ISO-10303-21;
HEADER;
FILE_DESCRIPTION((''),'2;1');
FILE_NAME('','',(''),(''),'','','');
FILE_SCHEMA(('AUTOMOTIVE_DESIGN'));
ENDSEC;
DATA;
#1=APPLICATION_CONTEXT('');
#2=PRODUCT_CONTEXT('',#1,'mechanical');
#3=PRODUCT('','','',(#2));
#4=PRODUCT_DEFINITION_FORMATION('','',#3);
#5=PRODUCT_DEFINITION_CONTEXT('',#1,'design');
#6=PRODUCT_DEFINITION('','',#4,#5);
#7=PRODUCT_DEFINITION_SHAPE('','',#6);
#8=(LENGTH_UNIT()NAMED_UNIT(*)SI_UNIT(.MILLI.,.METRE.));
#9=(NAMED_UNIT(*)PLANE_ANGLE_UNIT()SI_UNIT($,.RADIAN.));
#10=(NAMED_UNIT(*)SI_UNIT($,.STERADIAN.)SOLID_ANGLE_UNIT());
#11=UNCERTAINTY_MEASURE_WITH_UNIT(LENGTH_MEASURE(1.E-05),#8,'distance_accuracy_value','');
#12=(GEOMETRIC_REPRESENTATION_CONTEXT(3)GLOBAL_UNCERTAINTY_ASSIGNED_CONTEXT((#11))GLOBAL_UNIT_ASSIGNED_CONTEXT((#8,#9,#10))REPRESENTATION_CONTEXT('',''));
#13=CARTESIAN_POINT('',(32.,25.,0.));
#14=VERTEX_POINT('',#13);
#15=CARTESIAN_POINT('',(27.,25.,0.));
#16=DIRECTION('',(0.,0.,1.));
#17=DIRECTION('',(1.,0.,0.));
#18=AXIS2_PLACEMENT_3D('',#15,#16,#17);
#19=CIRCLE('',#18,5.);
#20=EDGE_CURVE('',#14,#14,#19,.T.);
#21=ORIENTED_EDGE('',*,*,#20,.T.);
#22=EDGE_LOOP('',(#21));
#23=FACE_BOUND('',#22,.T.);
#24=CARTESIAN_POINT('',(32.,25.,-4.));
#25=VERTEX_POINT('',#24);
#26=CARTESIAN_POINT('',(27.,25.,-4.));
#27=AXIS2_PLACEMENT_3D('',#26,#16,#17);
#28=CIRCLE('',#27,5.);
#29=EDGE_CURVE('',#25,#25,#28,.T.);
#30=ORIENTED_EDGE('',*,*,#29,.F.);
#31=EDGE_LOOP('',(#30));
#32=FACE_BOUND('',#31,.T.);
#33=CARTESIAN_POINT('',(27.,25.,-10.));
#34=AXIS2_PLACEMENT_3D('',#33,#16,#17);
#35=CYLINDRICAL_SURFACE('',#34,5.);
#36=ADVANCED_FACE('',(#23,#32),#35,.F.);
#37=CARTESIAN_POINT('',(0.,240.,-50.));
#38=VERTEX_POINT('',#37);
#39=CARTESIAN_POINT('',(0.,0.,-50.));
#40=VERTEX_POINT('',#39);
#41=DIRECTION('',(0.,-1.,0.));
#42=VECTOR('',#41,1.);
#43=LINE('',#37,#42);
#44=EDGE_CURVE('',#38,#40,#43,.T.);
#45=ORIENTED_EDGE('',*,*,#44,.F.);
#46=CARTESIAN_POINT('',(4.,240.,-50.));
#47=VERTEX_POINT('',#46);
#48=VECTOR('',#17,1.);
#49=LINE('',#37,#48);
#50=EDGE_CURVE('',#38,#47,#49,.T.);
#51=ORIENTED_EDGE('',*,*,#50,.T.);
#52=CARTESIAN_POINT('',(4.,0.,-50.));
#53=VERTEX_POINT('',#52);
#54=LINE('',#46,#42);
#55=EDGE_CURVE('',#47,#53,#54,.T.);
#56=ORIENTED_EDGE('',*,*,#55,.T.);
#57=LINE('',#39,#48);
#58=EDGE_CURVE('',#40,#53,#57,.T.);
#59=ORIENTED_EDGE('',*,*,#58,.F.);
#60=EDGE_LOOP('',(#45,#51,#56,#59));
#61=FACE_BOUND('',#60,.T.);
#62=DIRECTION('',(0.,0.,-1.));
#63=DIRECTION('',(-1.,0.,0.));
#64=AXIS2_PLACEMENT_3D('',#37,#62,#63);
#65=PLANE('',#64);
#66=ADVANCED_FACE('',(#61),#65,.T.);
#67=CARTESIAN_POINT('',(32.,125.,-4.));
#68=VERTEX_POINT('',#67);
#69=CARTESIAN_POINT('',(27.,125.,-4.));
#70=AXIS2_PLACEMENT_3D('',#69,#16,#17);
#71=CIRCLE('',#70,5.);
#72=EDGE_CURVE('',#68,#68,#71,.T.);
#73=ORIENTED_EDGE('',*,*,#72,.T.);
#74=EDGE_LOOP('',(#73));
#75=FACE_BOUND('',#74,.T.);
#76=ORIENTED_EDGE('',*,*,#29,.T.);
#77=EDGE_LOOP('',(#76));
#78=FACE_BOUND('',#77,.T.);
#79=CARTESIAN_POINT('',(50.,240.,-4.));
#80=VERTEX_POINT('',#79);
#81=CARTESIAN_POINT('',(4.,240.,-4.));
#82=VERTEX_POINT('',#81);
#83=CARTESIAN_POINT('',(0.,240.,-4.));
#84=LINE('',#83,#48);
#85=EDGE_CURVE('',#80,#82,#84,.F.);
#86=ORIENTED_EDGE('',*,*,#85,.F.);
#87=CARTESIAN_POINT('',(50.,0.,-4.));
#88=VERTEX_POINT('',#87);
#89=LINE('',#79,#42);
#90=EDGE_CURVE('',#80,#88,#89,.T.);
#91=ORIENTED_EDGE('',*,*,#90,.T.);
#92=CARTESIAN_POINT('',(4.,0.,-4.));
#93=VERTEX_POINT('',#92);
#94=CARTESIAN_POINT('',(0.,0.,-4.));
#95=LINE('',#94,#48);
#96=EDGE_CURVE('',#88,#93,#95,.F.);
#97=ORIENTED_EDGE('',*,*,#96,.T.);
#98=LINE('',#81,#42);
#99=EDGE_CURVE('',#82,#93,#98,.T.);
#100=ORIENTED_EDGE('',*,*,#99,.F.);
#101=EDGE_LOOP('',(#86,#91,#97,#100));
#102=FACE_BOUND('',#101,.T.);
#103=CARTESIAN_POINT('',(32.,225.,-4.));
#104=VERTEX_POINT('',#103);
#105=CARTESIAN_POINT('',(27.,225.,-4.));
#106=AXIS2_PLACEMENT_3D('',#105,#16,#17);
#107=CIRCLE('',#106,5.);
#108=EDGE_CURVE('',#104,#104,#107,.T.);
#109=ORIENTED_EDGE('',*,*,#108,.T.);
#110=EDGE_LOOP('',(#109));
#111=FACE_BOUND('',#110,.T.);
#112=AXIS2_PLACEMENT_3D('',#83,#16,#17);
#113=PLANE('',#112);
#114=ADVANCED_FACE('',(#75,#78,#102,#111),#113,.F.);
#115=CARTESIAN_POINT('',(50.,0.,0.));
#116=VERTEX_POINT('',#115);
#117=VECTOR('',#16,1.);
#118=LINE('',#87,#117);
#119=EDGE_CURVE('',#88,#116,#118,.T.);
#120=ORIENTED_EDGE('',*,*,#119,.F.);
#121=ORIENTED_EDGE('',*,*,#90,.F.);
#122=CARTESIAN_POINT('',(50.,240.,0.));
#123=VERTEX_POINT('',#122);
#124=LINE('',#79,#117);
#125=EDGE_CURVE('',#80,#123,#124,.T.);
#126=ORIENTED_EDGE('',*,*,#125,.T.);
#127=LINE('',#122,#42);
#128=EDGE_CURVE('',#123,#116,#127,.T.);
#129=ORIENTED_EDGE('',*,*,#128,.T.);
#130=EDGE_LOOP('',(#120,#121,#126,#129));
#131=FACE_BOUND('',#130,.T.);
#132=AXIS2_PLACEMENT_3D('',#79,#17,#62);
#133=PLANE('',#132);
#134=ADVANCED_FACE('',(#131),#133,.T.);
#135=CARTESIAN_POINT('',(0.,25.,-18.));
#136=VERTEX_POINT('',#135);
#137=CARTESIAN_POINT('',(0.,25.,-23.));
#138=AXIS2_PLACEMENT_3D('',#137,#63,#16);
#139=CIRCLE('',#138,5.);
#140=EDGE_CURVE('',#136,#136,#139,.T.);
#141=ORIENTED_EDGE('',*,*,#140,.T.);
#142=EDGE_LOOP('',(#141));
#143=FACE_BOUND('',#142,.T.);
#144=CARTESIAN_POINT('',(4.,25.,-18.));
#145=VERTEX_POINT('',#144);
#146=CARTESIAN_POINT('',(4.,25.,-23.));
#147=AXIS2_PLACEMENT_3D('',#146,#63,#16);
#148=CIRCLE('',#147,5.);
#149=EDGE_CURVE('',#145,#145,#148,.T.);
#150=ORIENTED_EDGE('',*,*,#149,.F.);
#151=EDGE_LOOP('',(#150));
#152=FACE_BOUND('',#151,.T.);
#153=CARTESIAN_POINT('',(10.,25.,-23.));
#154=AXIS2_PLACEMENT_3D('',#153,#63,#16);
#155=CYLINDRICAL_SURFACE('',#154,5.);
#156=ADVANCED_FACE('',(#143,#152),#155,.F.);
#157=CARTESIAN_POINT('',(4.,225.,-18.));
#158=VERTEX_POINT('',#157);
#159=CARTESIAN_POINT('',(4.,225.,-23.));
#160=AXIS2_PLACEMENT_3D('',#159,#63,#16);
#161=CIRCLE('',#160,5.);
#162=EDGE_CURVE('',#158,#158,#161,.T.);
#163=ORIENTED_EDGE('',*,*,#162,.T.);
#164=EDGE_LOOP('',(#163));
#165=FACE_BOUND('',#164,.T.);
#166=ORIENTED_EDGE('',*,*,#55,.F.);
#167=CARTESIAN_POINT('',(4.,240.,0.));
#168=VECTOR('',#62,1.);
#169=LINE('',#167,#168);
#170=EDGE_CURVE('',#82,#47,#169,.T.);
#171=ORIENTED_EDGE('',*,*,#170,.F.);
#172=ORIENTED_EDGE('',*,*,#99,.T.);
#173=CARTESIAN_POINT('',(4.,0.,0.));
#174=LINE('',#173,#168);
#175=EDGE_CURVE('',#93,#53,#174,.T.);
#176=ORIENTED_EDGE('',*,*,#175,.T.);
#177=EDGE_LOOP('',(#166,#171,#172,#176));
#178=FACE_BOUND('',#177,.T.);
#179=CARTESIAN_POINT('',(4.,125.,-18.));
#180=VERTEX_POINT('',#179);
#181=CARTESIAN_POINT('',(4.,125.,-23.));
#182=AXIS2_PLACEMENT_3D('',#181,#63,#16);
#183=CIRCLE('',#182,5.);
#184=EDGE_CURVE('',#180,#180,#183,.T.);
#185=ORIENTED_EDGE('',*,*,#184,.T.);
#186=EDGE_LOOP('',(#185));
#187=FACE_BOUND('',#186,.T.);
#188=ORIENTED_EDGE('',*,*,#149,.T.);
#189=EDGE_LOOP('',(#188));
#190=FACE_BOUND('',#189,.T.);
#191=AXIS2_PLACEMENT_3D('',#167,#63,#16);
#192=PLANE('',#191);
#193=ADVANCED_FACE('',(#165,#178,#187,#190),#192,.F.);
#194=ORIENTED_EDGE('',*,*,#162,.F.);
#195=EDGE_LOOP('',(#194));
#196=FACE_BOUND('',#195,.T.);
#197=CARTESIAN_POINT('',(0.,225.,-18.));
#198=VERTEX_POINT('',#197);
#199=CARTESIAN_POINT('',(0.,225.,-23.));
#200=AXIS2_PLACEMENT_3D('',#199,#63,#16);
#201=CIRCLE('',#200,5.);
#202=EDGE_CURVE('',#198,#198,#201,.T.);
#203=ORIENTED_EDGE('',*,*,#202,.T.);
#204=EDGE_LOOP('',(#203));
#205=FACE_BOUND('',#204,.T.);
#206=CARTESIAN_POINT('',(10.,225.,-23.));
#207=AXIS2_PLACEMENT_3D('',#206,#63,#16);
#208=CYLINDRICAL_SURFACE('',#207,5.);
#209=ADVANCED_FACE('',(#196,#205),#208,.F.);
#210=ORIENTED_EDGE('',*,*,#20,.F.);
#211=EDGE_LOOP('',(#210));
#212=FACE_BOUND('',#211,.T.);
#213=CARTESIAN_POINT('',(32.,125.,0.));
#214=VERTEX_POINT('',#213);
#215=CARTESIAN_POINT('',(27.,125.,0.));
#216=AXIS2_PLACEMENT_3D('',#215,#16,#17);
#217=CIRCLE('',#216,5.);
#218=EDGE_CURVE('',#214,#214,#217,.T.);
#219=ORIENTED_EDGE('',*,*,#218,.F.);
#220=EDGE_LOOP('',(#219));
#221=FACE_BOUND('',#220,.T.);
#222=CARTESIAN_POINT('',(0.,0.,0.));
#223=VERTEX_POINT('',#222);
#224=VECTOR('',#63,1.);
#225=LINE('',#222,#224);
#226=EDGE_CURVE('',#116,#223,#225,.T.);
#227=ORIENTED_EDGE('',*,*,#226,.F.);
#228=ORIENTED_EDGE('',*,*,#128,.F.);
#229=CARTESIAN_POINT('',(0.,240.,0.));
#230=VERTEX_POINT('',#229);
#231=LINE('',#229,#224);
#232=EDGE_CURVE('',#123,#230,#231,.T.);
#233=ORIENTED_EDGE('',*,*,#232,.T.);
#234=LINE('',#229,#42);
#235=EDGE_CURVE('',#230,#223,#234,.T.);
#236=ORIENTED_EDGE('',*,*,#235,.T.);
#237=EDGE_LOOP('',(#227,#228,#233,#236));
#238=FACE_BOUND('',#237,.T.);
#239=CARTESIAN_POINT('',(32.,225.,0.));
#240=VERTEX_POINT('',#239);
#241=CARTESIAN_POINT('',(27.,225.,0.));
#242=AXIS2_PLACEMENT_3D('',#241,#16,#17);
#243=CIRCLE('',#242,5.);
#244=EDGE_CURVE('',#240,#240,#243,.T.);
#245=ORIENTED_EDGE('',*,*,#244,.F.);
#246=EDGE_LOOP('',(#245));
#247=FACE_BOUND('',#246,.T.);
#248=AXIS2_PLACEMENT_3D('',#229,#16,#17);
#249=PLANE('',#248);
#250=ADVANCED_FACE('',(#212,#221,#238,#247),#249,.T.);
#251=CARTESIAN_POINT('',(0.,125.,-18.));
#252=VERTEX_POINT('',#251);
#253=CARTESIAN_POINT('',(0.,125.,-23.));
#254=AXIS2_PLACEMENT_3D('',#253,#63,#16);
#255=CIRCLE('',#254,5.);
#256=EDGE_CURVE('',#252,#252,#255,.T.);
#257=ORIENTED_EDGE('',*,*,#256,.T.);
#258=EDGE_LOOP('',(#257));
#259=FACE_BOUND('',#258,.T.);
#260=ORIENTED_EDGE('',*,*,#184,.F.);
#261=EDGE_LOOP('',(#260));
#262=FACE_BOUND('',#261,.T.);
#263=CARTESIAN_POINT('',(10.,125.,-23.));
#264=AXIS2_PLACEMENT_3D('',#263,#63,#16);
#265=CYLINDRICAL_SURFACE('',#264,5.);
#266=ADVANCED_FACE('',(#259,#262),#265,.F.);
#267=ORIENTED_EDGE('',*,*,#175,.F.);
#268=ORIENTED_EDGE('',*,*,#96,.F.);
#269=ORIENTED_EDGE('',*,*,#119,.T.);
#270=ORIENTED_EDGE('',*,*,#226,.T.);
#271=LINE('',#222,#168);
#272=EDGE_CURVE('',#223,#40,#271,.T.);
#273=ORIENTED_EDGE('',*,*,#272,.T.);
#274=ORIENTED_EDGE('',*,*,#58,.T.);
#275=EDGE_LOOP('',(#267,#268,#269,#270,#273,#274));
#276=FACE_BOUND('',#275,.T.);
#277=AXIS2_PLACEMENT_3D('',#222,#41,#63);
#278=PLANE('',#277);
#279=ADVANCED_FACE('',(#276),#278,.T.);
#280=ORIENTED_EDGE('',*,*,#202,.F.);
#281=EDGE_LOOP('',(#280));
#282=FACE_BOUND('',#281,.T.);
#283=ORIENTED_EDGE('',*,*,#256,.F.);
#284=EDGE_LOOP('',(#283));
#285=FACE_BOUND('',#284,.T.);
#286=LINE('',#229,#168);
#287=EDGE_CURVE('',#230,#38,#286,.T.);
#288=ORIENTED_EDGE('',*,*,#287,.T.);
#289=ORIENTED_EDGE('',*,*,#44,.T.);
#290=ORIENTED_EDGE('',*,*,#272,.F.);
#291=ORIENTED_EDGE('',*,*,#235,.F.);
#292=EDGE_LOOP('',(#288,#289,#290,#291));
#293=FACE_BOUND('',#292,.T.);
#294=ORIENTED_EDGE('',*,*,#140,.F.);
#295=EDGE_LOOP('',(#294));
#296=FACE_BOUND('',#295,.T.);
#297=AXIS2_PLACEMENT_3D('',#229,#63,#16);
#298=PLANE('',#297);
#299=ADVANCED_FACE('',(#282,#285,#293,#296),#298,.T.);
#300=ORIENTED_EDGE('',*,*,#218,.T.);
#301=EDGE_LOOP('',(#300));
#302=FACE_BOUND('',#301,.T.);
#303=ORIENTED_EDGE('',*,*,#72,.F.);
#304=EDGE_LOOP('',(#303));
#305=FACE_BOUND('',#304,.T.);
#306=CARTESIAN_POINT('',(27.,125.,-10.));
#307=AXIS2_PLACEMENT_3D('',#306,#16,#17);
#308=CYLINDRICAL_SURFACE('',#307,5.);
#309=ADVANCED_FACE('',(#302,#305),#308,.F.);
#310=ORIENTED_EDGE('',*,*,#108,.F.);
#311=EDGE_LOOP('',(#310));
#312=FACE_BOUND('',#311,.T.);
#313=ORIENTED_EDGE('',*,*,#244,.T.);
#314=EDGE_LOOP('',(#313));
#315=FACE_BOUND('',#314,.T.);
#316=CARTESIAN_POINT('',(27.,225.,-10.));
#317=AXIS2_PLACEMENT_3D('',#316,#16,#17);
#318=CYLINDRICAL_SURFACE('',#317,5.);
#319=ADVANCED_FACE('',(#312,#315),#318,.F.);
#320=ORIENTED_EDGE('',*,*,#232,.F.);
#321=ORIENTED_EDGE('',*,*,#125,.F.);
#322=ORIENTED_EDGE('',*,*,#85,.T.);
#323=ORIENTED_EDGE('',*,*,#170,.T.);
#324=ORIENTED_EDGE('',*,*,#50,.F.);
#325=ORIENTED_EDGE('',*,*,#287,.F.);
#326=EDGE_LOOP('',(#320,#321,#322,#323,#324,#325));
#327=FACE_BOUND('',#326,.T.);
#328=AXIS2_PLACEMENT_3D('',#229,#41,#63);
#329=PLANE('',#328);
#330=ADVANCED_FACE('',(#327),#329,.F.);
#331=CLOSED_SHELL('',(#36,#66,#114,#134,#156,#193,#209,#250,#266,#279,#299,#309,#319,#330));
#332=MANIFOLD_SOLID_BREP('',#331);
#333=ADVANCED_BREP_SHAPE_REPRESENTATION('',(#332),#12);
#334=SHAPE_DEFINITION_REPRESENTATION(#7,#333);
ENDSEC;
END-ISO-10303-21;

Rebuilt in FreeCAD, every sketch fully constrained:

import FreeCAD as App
import Part
import Sketcher
from FreeCAD import Vector

doc = App.newDocument("Part")
params = doc.addObject("Spreadsheet::Sheet", "Params")
for row, (alias, value) in enumerate([
    ("sketch1_width", "50 mm"),
    ("sketch1_width2", "46 mm"),
    ("pad1_length", "240 mm"),
    ("sketch2_diameter", "10 mm"),
    ("pocket1_length", "10 mm"),
    ("sketch3_diameter", "10 mm"),
    ("pocket2_length", "10 mm"),
], start=1):
    params.set(f"A{row}", alias)
    params.set(f"B{row}", "=" + value)
    params.setAlias(f"B{row}", alias)

body = doc.addObject("PartDesign::Body", "Body")

# Sketch on XZ plane
sketch1 = body.newObject("Sketcher::SketchObject", "Sketch")
sketch1.AttachmentSupport = (doc.getObject("XZ_Plane"), [""])
sketch1.MapMode = "FlatFace"
sketch1.addGeometry([
    Part.LineSegment(Vector(0, -50, 0), Vector(0, 0, 0)),  # 0
    Part.LineSegment(Vector(0, 0, 0), Vector(50, 0, 0)),  # 1
    Part.LineSegment(Vector(50, 0, 0), Vector(50, -4, 0)),  # 2
    Part.LineSegment(Vector(50, -4, 0), Vector(4, -4, 0)),  # 3
    Part.LineSegment(Vector(4, -4, 0), Vector(4, -50, 0)),  # 4
    Part.LineSegment(Vector(4, -50, 0), Vector(0, -50, 0)),  # 5
], False)
sketch1.addConstraint([
    Sketcher.Constraint("Coincident", 0, 2, 1, 1),
    Sketcher.Constraint("Coincident", 1, 2, 2, 1),
    Sketcher.Constraint("Coincident", 2, 2, 3, 1),
    Sketcher.Constraint("Coincident", 3, 2, 4, 1),
    Sketcher.Constraint("Coincident", 4, 2, 5, 1),
    Sketcher.Constraint("Coincident", 5, 2, 0, 1),
    Sketcher.Constraint("Vertical", 0),
    Sketcher.Constraint("Horizontal", 1),
    Sketcher.Constraint("Vertical", 2),
    Sketcher.Constraint("Horizontal", 3),
    Sketcher.Constraint("Vertical", 4),
    Sketcher.Constraint("Horizontal", 5),
    Sketcher.Constraint("Coincident", 0, 2, -1, 1),
    Sketcher.Constraint("Equal", 1, 0),
    Sketcher.Constraint("Equal", 5, 2),
    Sketcher.Constraint("DistanceX", 1, 1, 1, 2, 50.0),
    Sketcher.Constraint("DistanceX", 3, 2, 3, 1, 46.0),
])
sketch1.setExpression("Constraints[15]", "Params.sketch1_width")
sketch1.setExpression("Constraints[16]", "Params.sketch1_width2")
pad1 = body.newObject("PartDesign::Pad", "Pad")
pad1.Profile = sketch1
pad1.setExpression("Length", "Params.pad1_length")
pad1.Reversed = True

# Sketch on XY plane
sketch2 = body.newObject("Sketcher::SketchObject", "Sketch001")
sketch2.AttachmentSupport = (doc.getObject("XY_Plane"), [""])
sketch2.MapMode = "FlatFace"
sketch2.addGeometry([
    Part.Circle(Vector(27, 225, 0), Vector(0, 0, 1), 5),
    Part.Circle(Vector(27, 125, 0), Vector(0, 0, 1), 5),
    Part.Circle(Vector(27, 25, 0), Vector(0, 0, 1), 5),
], False)
sketch2.addConstraint([
    Sketcher.Constraint("Equal", 0, 1),
    Sketcher.Constraint("Equal", 1, 2),
    Sketcher.Constraint("Vertical", 0, 3, 1, 3),
    Sketcher.Constraint("Vertical", 1, 3, 2, 3),
    Sketcher.Constraint("Diameter", 0, 10.0),
    Sketcher.Constraint("DistanceX", -1, 1, 0, 3, 27.0),
    Sketcher.Constraint("DistanceY", -1, 1, 0, 3, 225.0),
    Sketcher.Constraint("DistanceY", -1, 1, 1, 3, 125.0),
    Sketcher.Constraint("DistanceY", -1, 1, 2, 3, 25.0),
])
sketch2.setExpression("Constraints[4]", "Params.sketch2_diameter")
pocket1 = body.newObject("PartDesign::Pocket", "Pocket")
pocket1.Profile = sketch2
pocket1.setExpression("Length", "Params.pocket1_length")

# Sketch on YZ plane
sketch3 = body.newObject("Sketcher::SketchObject", "Sketch002")
sketch3.AttachmentSupport = (doc.getObject("YZ_Plane"), [""])
sketch3.MapMode = "FlatFace"
sketch3.addGeometry([
    Part.Circle(Vector(225, -23, 0), Vector(0, 0, 1), 5),
    Part.Circle(Vector(125, -23, 0), Vector(0, 0, 1), 5),
    Part.Circle(Vector(25, -23, 0), Vector(0, 0, 1), 5),
], False)
sketch3.addConstraint([
    Sketcher.Constraint("Equal", 0, 1),
    Sketcher.Constraint("Equal", 1, 2),
    Sketcher.Constraint("Horizontal", 0, 3, 1, 3),
    Sketcher.Constraint("Horizontal", 1, 3, 2, 3),
    Sketcher.Constraint("Diameter", 0, 10.0),
    Sketcher.Constraint("DistanceX", -1, 1, 0, 3, 225.0),
    Sketcher.Constraint("DistanceY", 0, 3, -1, 1, 23.0),
    Sketcher.Constraint("DistanceX", -1, 1, 1, 3, 125.0),
    Sketcher.Constraint("DistanceX", -1, 1, 2, 3, 25.0),
])
sketch3.setExpression("Constraints[4]", "Params.sketch3_diameter")
pocket2 = body.newObject("PartDesign::Pocket", "Pocket001")
pocket2.Profile = sketch3
pocket2.setExpression("Length", "Params.pocket2_length")
pocket2.Reversed = True

doc.recompute()
